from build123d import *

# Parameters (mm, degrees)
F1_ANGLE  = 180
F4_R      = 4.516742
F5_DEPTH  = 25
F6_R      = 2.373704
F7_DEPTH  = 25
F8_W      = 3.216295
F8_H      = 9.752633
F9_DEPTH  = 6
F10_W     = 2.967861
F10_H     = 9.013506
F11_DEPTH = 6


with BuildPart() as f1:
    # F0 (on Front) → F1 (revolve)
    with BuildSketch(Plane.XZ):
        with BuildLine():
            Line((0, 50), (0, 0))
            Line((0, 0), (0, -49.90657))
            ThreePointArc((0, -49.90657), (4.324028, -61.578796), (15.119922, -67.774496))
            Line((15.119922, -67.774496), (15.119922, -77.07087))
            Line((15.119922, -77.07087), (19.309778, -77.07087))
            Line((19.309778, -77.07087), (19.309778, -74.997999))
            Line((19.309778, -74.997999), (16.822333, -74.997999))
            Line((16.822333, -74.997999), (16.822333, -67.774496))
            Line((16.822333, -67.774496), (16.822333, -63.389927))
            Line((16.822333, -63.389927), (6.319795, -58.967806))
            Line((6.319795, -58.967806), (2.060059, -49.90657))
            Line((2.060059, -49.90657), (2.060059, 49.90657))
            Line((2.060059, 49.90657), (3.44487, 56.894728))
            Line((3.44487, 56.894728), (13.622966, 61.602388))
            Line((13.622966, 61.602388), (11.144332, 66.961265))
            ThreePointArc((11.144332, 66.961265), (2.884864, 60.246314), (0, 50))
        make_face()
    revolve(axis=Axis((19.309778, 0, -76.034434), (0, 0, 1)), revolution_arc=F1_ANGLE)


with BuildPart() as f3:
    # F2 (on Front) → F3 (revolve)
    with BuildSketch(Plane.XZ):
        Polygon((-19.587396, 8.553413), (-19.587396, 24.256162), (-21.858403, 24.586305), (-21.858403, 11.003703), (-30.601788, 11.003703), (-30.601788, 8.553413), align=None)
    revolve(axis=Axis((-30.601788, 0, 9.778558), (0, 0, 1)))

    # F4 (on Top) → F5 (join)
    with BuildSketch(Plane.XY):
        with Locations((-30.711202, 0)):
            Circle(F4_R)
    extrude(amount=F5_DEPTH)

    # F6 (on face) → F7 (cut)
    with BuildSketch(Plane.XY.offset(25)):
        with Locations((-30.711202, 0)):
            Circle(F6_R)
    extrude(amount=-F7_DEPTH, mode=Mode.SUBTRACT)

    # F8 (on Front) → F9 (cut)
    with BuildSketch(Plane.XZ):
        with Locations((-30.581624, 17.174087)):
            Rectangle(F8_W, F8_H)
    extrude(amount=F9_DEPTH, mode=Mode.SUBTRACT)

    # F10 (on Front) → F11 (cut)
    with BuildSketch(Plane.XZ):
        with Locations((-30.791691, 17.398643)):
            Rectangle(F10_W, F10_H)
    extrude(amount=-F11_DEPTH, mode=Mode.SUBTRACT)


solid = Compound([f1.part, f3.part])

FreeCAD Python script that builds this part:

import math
import FreeCAD as App
import Part
import Sketcher
Q = App.Units.Quantity

doc = App.newDocument("Part")
body = doc.addObject("PartDesign::Body", "Body")

sketch1 = body.newObject("Sketcher::SketchObject", "Sketch")
sketch1.AttachmentSupport = (doc.getObject("XZ_Plane"), [""])
sketch1.MapMode = "FlatFace"
sketch1.addGeometry(Part.LineSegment(App.Vector(0, 50, 0), App.Vector(0, -49.9, 0)), False)
sketch1.addGeometry(Part.ArcOfCircle(Part.Circle(App.Vector(18.3, -49.8, 0), App.Vector(0, 0, 1), 18.3), math.radians(-180), math.radians(-100)), False)
sketch1.addGeometry(Part.LineSegment(App.Vector(15.1, -67.8, 0), App.Vector(15.1, -77.1, 0)), False)
sketch1.addGeometry(Part.LineSegment(App.Vector(15.1, -77.1, 0), App.Vector(19.3, -77.1, 0)), False)
sketch1.addGeometry(Part.LineSegment(App.Vector(19.3, -77.1, 0), App.Vector(19.3, -75, 0)), False)
sketch1.addGeometry(Part.LineSegment(App.Vector(19.3, -75, 0), App.Vector(16.8, -75, 0)), False)
sketch1.addGeometry(Part.LineSegment(App.Vector(16.8, -75, 0), App.Vector(16.8, -63.4, 0)), False)
sketch1.addGeometry(Part.LineSegment(App.Vector(16.8, -63.4, 0), App.Vector(6.3, -59, 0)), False)
sketch1.addGeometry(Part.LineSegment(App.Vector(6.3, -59, 0), App.Vector(2.1, -49.9, 0)), False)
sketch1.addGeometry(Part.LineSegment(App.Vector(2.1, -49.9, 0), App.Vector(2.1, 49.9, 0)), False)
sketch1.addGeometry(Part.LineSegment(App.Vector(2.1, 49.9, 0), App.Vector(3.4, 56.9, 0)), False)
sketch1.addGeometry(Part.LineSegment(App.Vector(3.4, 56.9, 0), App.Vector(13.6, 61.6, 0)), False)
sketch1.addGeometry(Part.LineSegment(App.Vector(13.6, 61.6, 0), App.Vector(11.1, 67, 0)), False)
sketch1.addGeometry(Part.ArcOfCircle(Part.Circle(App.Vector(17.6, 50.6, 0), App.Vector(0, 0, 1), 17.6), math.radians(112), math.radians(182)), False)
sketch1.addGeometry(Part.LineSegment(App.Vector(19.3, -77.1, 0), App.Vector(19.3, 67, 0)), True)
sketch1.addConstraint(Sketcher.Constraint("Coincident", 0, 2, 1, 1))
sketch1.addConstraint(Sketcher.Constraint("Coincident", 1, 2, 2, 1))
sketch1.addConstraint(Sketcher.Constraint("Coincident", 2, 2, 3, 1))
sketch1.addConstraint(Sketcher.Constraint("Coincident", 3, 2, 4, 1))
sketch1.addConstraint(Sketcher.Constraint("Coincident", 4, 2, 5, 1))
sketch1.addConstraint(Sketcher.Constraint("Coincident", 5, 2, 6, 1))
sketch1.addConstraint(Sketcher.Constraint("Coincident", 6, 2, 7, 1))
sketch1.addConstraint(Sketcher.Constraint("Coincident", 7, 2, 8, 1))
sketch1.addConstraint(Sketcher.Constraint("Coincident", 8, 2, 9, 1))
sketch1.addConstraint(Sketcher.Constraint("Coincident", 9, 2, 10, 1))
sketch1.addConstraint(Sketcher.Constraint("Coincident", 10, 2, 11, 1))
sketch1.addConstraint(Sketcher.Constraint("Coincident", 11, 2, 12, 1))
sketch1.addConstraint(Sketcher.Constraint("Coincident", 12, 2, 13, 1))
sketch1.addConstraint(Sketcher.Constraint("Coincident", 13, 2, 0, 1))
sketch1.addConstraint(Sketcher.Constraint("Vertical", 0))
sketch1.addConstraint(Sketcher.Constraint("Vertical", 2))
sketch1.addConstraint(Sketcher.Constraint("Horizontal", 3))
sketch1.addConstraint(Sketcher.Constraint("Vertical", 4))
sketch1.addConstraint(Sketcher.Constraint("Horizontal", 5))
sketch1.addConstraint(Sketcher.Constraint("Vertical", 6))
sketch1.addConstraint(Sketcher.Constraint("Vertical", 9))
sketch1.addConstraint(Sketcher.Constraint("Vertical", 14))
sketch1.addConstraint(Sketcher.Constraint("Coincident", 14, 1, 3, 2))
sketch1.addConstraint(Sketcher.Constraint("PointOnObject", 0, 2, -2))
sketch1.addConstraint(Sketcher.Constraint("Perpendicular", 11, 12))
sketch1.addConstraint(Sketcher.Constraint("Horizontal", 0, 2, 8, 2))
sketch1.addConstraint(Sketcher.Constraint("Horizontal", 12, 2, 14, 2))
sketch1.addConstraint(Sketcher.Constraint("DistanceY", -1, 1, 13, 2, Q("50 mm")))
sketch1.addConstraint(Sketcher.Constraint("DistanceY", 4, 2, -1, 1, Q("74.997999 mm")))
sketch1.addConstraint(Sketcher.Constraint("Radius", 1, Q("18.275192 mm")))
sketch1.addConstraint(Sketcher.Constraint("Radius", 13, Q("17.619433 mm")))
sketch1.addConstraint(Sketcher.Constraint("DistanceY", 0, 2, 0, 1, Q("99.90657 mm")))
sketch1.addConstraint(Sketcher.Constraint("DistanceY", 4, 1, 4, 2, Q("2.072871 mm")))
sketch1.addConstraint(Sketcher.Constraint("DistanceY", 6, 1, 6, 2, Q("11.608072 mm")))
sketch1.addConstraint(Sketcher.Constraint("DistanceY", 9, 1, 9, 2, Q("99.81314 mm")))
sketch1.addConstraint(Sketcher.Constraint("DistanceY", 8, 2, 10, 2, Q("106.801298 mm")))
sketch1.addConstraint(Sketcher.Constraint("Distance", 8, Q("10.01256 mm")))
sketch1.addConstraint(Sketcher.Constraint("DistanceX", 3, 1, 3, 2, Q("4.189856 mm")))
sketch1.addConstraint(Sketcher.Constraint("DistanceX", 5, 2, 5, 1, Q("2.487445 mm")))
sketch1.addConstraint(Sketcher.Constraint("DistanceY", 2, 2, 2, 1, Q("9.296374 mm")))
sketch1.addConstraint(Sketcher.Constraint("DistanceY", 14, 1, 14, 2, Q("144.032135 mm")))
sketch1.addConstraint(Sketcher.Constraint("DistanceX", -1, 1, 1, 2, Q("15.119922 mm")))
sketch1.addConstraint(Sketcher.Constraint("DistanceX", -1, 1, 8, 2, Q("2.060059 mm")))
sketch1.addConstraint(Sketcher.Constraint("DistanceX", -1, 1, 10, 2, Q("3.44487 mm")))
sketch1.addConstraint(Sketcher.Constraint("DistanceY", 1, 3, 13, 3, Q("100.34477 mm")))
sketch1.addConstraint(Sketcher.Constraint("DistanceX", 7, 2, 6, 2, Q("10.502538 mm")))
sketch1.addConstraint(Sketcher.Constraint("DistanceY", 10, 2, 11, 2, Q("4.70766 mm")))
revolution = body.newObject("PartDesign::Revolution", "Revolution")
revolution.Profile = sketch1
revolution.ReferenceAxis = (sketch1, ["Axis0"])
revolution.Angle = 180
body2 = doc.addObject("PartDesign::Body", "Body001")

sketch2 = body2.newObject("Sketcher::SketchObject", "Sketch001")
sketch2.AttachmentSupport = (doc.getObject("XZ_Plane001"), [""])
sketch2.MapMode = "FlatFace"
sketch2.addGeometry(Part.LineSegment(App.Vector(-19.6, 8.6, 0), App.Vector(-19.6, 24.3, 0)), False)
sketch2.addGeometry(Part.LineSegment(App.Vector(-19.6, 24.3, 0), App.Vector(-21.9, 24.6, 0)), False)
sketch2.addGeometry(Part.LineSegment(App.Vector(-21.9, 24.6, 0), App.Vector(-21.9, 11, 0)), False)
sketch2.addGeometry(Part.LineSegment(App.Vector(-21.9, 11, 0), App.Vector(-30.6, 11, 0)), False)
sketch2.addGeometry(Part.LineSegment(App.Vector(-30.6, 11, 0), App.Vector(-30.6, 8.6, 0)), False)
sketch2.addGeometry(Part.LineSegment(App.Vector(-30.6, 8.6, 0), App.Vector(-19.6, 8.6, 0)), False)
sketch2.addGeometry(Part.LineSegment(App.Vector(-30.6, 8.6, 0), App.Vector(-30.6, 24.6, 0)), True)
sketch2.addConstraint(Sketcher.Constraint("Coincident", 0, 2, 1, 1))
sketch2.addConstraint(Sketcher.Constraint("Coincident", 1, 2, 2, 1))
sketch2.addConstraint(Sketcher.Constraint("Coincident", 2, 2, 3, 1))
sketch2.addConstraint(Sketcher.Constraint("Coincident", 3, 2, 4, 1))
sketch2.addConstraint(Sketcher.Constraint("Coincident", 4, 2, 5, 1))
sketch2.addConstraint(Sketcher.Constraint("Coincident", 5, 2, 0, 1))
sketch2.addConstraint(Sketcher.Constraint("Vertical", 0))
sketch2.addConstraint(Sketcher.Constraint("Vertical", 2))
sketch2.addConstraint(Sketcher.Constraint("Horizontal", 3))
sketch2.addConstraint(Sketcher.Constraint("Vertical", 4))
sketch2.addConstraint(Sketcher.Constraint("Horizontal", 5))
sketch2.addConstraint(Sketcher.Constraint("Vertical", 6))
sketch2.addConstraint(Sketcher.Constraint("Coincident", 6, 1, 4, 2))
sketch2.addConstraint(Sketcher.Constraint("Horizontal", 1, 2, 6, 2))
sketch2.addConstraint(Sketcher.Constraint("DistanceY", 0, 1, 0, 2, Q("15.702749 mm")))
sketch2.addConstraint(Sketcher.Constraint("DistanceY", 4, 2, 4, 1, Q("2.45029 mm")))
sketch2.addConstraint(Sketcher.Constraint("DistanceY", 6, 1, 6, 2, Q("16.032892 mm")))
sketch2.addConstraint(Sketcher.Constraint("Distance", 1, Q("2.294878 mm")))
sketch2.addConstraint(Sketcher.Constraint("DistanceX", 3, 2, 3, 1, Q("8.743385 mm")))
sketch2.addConstraint(Sketcher.Constraint("DistanceY", -1, 1, 0, 2, Q("24.256162 mm")))
sketch2.addConstraint(Sketcher.Constraint("DistanceX", 0, 2, -1, 1, Q("19.587396 mm")))
revolution2 = body2.newObject("PartDesign::Revolution", "Revolution001")
revolution2.Profile = sketch2
revolution2.ReferenceAxis = (sketch2, ["Axis0"])
revolution2.Angle = 360

sketch3 = body2.newObject("Sketcher::SketchObject", "Sketch002")
sketch3.AttachmentSupport = (doc.getObject("XY_Plane001"), [""])
sketch3.MapMode = "FlatFace"
sketch3.addGeometry(Part.Circle(App.Vector(-30.7, 0, 0), App.Vector(0, 0, 1), 4.5), False)
sketch3.addConstraint(Sketcher.Constraint("PointOnObject", 0, 3, -1))
sketch3.addConstraint(Sketcher.Constraint("Diameter", 0, Q("9.033484 mm")))
sketch3.addConstraint(Sketcher.Constraint("DistanceX", 0, 3, -1, 1, Q("30.711202 mm")))
pad1 = body2.newObject("PartDesign::Pad", "Pad")
pad1.Profile = sketch3
pad1.Length = 25

sketch4 = body2.newObject("Sketcher::SketchObject", "Sketch003")
sketch4.AttachmentSupport = (doc.getObject("XY_Plane001"), [""])
sketch4.MapMode = "FlatFace"
sketch4.AttachmentOffset = App.Placement(App.Vector(0, 0, 25), App.Rotation())
sketch4.addGeometry(Part.Circle(App.Vector(-30.7, 0, 0), App.Vector(0, 0, 1), 2.4), False)
sketch4.addConstraint(Sketcher.Constraint("PointOnObject", 0, 3, -1))
sketch4.addConstraint(Sketcher.Constraint("Diameter", 0, Q("4.747408 mm")))
sketch4.addConstraint(Sketcher.Constraint("DistanceX", 0, 3, -1, 1, Q("30.711202 mm")))
pocket1 = body2.newObject("PartDesign::Pocket", "Pocket")
pocket1.Profile = sketch4
pocket1.Length = 25

sketch5 = body2.newObject("Sketcher::SketchObject", "Sketch004")
sketch5.AttachmentSupport = (doc.getObject("XZ_Plane001"), [""])
sketch5.MapMode = "FlatFace"
sketch5.addGeometry(Part.LineSegment(App.Vector(-32.2, 22.1, 0), App.Vector(-32.2, 12.3, 0)), False)
sketch5.addGeometry(Part.LineSegment(App.Vector(-32.2, 12.3, 0), App.Vector(-29, 12.3, 0)), False)
sketch5.addGeometry(Part.LineSegment(App.Vector(-29, 12.3, 0), App.Vector(-29, 22.1, 0)), False)
sketch5.addGeometry(Part.LineSegment(App.Vector(-29, 22.1, 0), App.Vector(-32.2, 22.1, 0)), False)
sketch5.addConstraint(Sketcher.Constraint("Coincident", 0, 2, 1, 1))
sketch5.addConstraint(Sketcher.Constraint("Coincident", 1, 2, 2, 1))
sketch5.addConstraint(Sketcher.Constraint("Coincident", 2, 2, 3, 1))
sketch5.addConstraint(Sketcher.Constraint("Coincident", 3, 2, 0, 1))
sketch5.addConstraint(Sketcher.Constraint("Vertical", 0))
sketch5.addConstraint(Sketcher.Constraint("Horizontal", 1))
sketch5.addConstraint(Sketcher.Constraint("Vertical", 2))
sketch5.addConstraint(Sketcher.Constraint("Horizontal", 3))
sketch5.addConstraint(Sketcher.Constraint("DistanceX", 1, 1, 1, 2, Q("3.216295 mm")))
sketch5.addConstraint(Sketcher.Constraint("DistanceY", 0, 2, 0, 1, Q("9.752633 mm")))
sketch5.addConstraint(Sketcher.Constraint("DistanceX", 0, 2, -1, 1, Q("32.189771 mm")))
sketch5.addConstraint(Sketcher.Constraint("DistanceY", -1, 1, 0, 2, Q("12.297771 mm")))
pocket2 = body2.newObject("PartDesign::Pocket", "Pocket001")
pocket2.Profile = sketch5
pocket2.Length = 6
pocket2.Reversed = True

sketch6 = body2.newObject("Sketcher::SketchObject", "Sketch005")
sketch6.AttachmentSupport = (doc.getObject("XZ_Plane001"), [""])
sketch6.MapMode = "FlatFace"
sketch6.addGeometry(Part.LineSegment(App.Vector(-32.3, 21.9, 0), App.Vector(-32.3, 12.9, 0)), False)
sketch6.addGeometry(Part.LineSegment(App.Vector(-32.3, 12.9, 0), App.Vector(-29.3, 12.9, 0)), False)
sketch6.addGeometry(Part.LineSegment(App.Vector(-29.3, 12.9, 0), App.Vector(-29.3, 21.9, 0)), False)
sketch6.addGeometry(Part.LineSegment(App.Vector(-29.3, 21.9, 0), App.Vector(-32.3, 21.9, 0)), False)
sketch6.addConstraint(Sketcher.Constraint("Coincident", 0, 2, 1, 1))
sketch6.addConstraint(Sketcher.Constraint("Coincident", 1, 2, 2, 1))
sketch6.addConstraint(Sketcher.Constraint("Coincident", 2, 2, 3, 1))
sketch6.addConstraint(Sketcher.Constraint("Coincident", 3, 2, 0, 1))
sketch6.addConstraint(Sketcher.Constraint("Vertical", 0))
sketch6.addConstraint(Sketcher.Constraint("Horizontal", 1))
sketch6.addConstraint(Sketcher.Constraint("Vertical", 2))
sketch6.addConstraint(Sketcher.Constraint("Horizontal", 3))
sketch6.addConstraint(Sketcher.Constraint("DistanceX", 1, 1, 1, 2, Q("2.967861 mm")))
sketch6.addConstraint(Sketcher.Constraint("DistanceY", 0, 2, 0, 1, Q("9.013506 mm")))
sketch6.addConstraint(Sketcher.Constraint("DistanceX", 0, 2, -1, 1, Q("32.275621 mm")))
sketch6.addConstraint(Sketcher.Constraint("DistanceY", -1, 1, 0, 2, Q("12.89189 mm")))
pocket3 = body2.newObject("PartDesign::Pocket", "Pocket002")
pocket3.Profile = sketch6
pocket3.Length = 6

doc.recompute()
